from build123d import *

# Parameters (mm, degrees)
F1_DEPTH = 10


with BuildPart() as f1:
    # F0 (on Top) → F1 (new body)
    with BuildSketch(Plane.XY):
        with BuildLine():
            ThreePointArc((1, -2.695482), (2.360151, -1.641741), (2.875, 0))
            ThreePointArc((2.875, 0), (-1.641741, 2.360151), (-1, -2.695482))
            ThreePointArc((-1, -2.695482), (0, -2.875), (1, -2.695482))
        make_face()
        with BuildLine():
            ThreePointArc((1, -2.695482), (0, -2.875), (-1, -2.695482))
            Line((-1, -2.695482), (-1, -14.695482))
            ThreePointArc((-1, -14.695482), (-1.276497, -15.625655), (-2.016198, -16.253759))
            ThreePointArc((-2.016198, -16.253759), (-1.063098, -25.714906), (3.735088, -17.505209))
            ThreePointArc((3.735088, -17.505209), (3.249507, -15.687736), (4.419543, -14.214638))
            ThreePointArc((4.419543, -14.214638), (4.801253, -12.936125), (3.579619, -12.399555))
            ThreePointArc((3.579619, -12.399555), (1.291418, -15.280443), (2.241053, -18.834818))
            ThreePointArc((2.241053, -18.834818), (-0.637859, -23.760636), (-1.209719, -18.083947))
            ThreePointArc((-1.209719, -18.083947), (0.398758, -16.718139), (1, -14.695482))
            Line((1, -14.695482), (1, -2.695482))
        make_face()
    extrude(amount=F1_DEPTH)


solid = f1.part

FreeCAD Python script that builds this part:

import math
import FreeCAD as App
import Part
import Sketcher

V = App.Vector
Q = App.Units.Quantity

doc = App.newDocument("Part")
body = doc.addObject("PartDesign::Body", "Body")

sketch1 = body.newObject("Sketcher::SketchObject", "Sketch")
sketch1.AttachmentSupport = (doc.getObject("XY_Plane"), [""])
sketch1.MapMode = "FlatFace"
sketch1.addGeometry(Part.ArcOfCircle(Part.Circle(V(0, 0, 0), V(0, 0, 1), 2.9), math.radians(-70), math.radians(0)), False)
sketch1.addGeometry(Part.ArcOfCircle(Part.Circle(V(0, 0, 0), V(0, 0, 1), 2.9), math.radians(0), math.radians(250)), False)
sketch1.addGeometry(Part.LineSegment(V(-1, -2.7, 0), V(-1, -14.7, 0)), False)
sketch1.addGeometry(Part.ArcOfCircle(Part.Circle(V(-2.7, -14.7, 0), V(0, 0, 1), 1.7), math.radians(-66), math.radians(0)), False)
sketch1.addGeometry(Part.ArcOfCircle(Part.Circle(V(0, -20.8, 0), V(0, 0, 1), 5), math.radians(114), math.radians(402)), False)
sketch1.addGeometry(Part.ArcOfCircle(Part.Circle(V(5.3, -16.1, 0), V(0, 0, 1), 2.1), math.radians(115), math.radians(222)), False)
sketch1.addGeometry(Part.ArcOfCircle(Part.Circle(V(3.9, -13.4, 0), V(0, 0, 1), 1), math.radians(-58), math.radians(108)), False)
sketch1.addGeometry(Part.ArcOfCircle(Part.Circle(V(5.3, -16.1, 0), V(0, 0, 1), 4.1), math.radians(115), math.radians(222)), False)
sketch1.addGeometry(Part.ArcOfCircle(Part.Circle(V(0, -20.8, 0), V(0, 0, 1), 3), math.radians(114), math.radians(402)), False)
sketch1.addGeometry(Part.ArcOfCircle(Part.Circle(V(-2.7, -14.7, 0), V(0, 0, 1), 3.7), math.radians(-66), math.radians(0)), False)
sketch1.addGeometry(Part.LineSegment(V(1, -14.7, 0), V(1, -2.7, 0)), False)
sketch1.addConstraint(Sketcher.Constraint("Tangent", 0, 2, 1, 1))
sketch1.addConstraint(Sketcher.Constraint("Coincident", 1, 2, 2, 1))
sketch1.addConstraint(Sketcher.Constraint("Tangent", 2, 2, 3, 2))
sketch1.addConstraint(Sketcher.Constraint("Tangent", 3, 1, 4, 1))
sketch1.addConstraint(Sketcher.Constraint("Tangent", 4, 2, 5, 2))
sketch1.addConstraint(Sketcher.Constraint("Coincident", 5, 1, 6, 1))
sketch1.addConstraint(Sketcher.Constraint("Coincident", 6, 2, 7, 1))
sketch1.addConstraint(Sketcher.Constraint("Tangent", 7, 2, 8, 2))
sketch1.addConstraint(Sketcher.Constraint("Tangent", 8, 1, 9, 1))
sketch1.addConstraint(Sketcher.Constraint("Tangent", 9, 2, 10, 1))
sketch1.addConstraint(Sketcher.Constraint("Coincident", 10, 2, 0, 1))
sketch1.addConstraint(Sketcher.Constraint("Vertical", 2))
sketch1.addConstraint(Sketcher.Constraint("Vertical", 10))
sketch1.addConstraint(Sketcher.Constraint("Coincident", 0, 3, -1, 1))
sketch1.addConstraint(Sketcher.Constraint("Coincident", 7, 3, 5, 3))
sketch1.addConstraint(Sketcher.Constraint("Coincident", 8, 3, 4, 3))
sketch1.addConstraint(Sketcher.Constraint("Coincident", 9, 3, 3, 3))
sketch1.addConstraint(Sketcher.Constraint("Equal", 0, 1))
sketch1.addConstraint(Sketcher.Constraint("PointOnObject", 4, 3, -2))
sketch1.addConstraint(Sketcher.Constraint("PointOnObject", 0, 2, -1))
sketch1.addConstraint(Sketcher.Constraint("Horizontal", 1, 2, 10, 2))
sketch1.addConstraint(Sketcher.Constraint("Radius", 4, Q("5 mm")))
sketch1.addConstraint(Sketcher.Constraint("Radius", 8, Q("3 mm")))
sketch1.addConstraint(Sketcher.Constraint("DistanceY", 2, 2, 2, 1, Q("12 mm")))
sketch1.addConstraint(Sketcher.Constraint("Radius", 0, Q("2.874998 mm")))
sketch1.addConstraint(Sketcher.Constraint("Radius", 3, Q("1.702858 mm")))
sketch1.addConstraint(Sketcher.Constraint("Radius", 5, Q("2.092778 mm")))
sketch1.addConstraint(Sketcher.Constraint("Radius", 6, Q("1.007703 mm")))
sketch1.addConstraint(Sketcher.Constraint("DistanceY", 5, 3, 6, 3, Q("2.754599 mm")))
sketch1.addConstraint(Sketcher.Constraint("DistanceX", -1, 1, 5, 3, Q("5.29843 mm")))
sketch1.addConstraint(Sketcher.Constraint("DistanceX", -1, 1, 6, 3, Q("3.886721 mm")))
pad1 = body.newObject("PartDesign::Pad", "Pad")
pad1.Profile = sketch1
pad1.Length = 10

doc.recompute()
